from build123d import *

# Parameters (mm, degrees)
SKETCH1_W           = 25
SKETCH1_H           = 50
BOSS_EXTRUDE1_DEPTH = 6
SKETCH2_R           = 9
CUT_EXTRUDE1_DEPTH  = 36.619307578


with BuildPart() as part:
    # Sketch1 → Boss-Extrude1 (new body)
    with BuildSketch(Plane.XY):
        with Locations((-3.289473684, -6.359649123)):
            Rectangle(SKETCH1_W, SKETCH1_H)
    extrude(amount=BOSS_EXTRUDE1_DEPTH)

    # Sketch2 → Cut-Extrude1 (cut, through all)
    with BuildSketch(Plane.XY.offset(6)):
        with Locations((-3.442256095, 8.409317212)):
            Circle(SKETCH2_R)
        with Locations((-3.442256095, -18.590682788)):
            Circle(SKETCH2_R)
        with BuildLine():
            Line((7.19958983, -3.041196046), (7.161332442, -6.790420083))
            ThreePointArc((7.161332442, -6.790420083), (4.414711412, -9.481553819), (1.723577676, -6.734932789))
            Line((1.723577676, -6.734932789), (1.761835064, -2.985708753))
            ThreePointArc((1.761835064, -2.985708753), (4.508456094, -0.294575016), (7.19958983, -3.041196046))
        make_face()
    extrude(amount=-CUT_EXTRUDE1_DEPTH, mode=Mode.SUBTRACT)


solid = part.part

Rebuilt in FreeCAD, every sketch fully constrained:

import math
import FreeCAD as App
import Part
import Sketcher

doc = App.newDocument("Part")
body = doc.addObject("PartDesign::Body", "Body")

sketch1 = body.newObject("Sketcher::SketchObject", "Sketch")
sketch1.AttachmentSupport = (doc.getObject("XY_Plane"), [""])
sketch1.MapMode = "FlatFace"
sketch1.addGeometry(Part.LineSegment(App.Vector(-15.789474, 18.640351, 0), App.Vector(-15.789474, -31.359649, 0)), False)
sketch1.addGeometry(Part.LineSegment(App.Vector(-15.789474, -31.359649, 0), App.Vector(9.210526, -31.359649, 0)), False)
sketch1.addGeometry(Part.LineSegment(App.Vector(9.210526, -31.359649, 0), App.Vector(9.210526, 18.640351, 0)), False)
sketch1.addGeometry(Part.LineSegment(App.Vector(9.210526, 18.640351, 0), App.Vector(-15.789474, 18.640351, 0)), False)
sketch1.addConstraint(Sketcher.Constraint("Coincident", 0, 2, 1, 1))
sketch1.addConstraint(Sketcher.Constraint("Coincident", 1, 2, 2, 1))
sketch1.addConstraint(Sketcher.Constraint("Coincident", 2, 2, 3, 1))
sketch1.addConstraint(Sketcher.Constraint("Coincident", 3, 2, 0, 1))
sketch1.addConstraint(Sketcher.Constraint("Vertical", 0))
sketch1.addConstraint(Sketcher.Constraint("Horizontal", 1))
sketch1.addConstraint(Sketcher.Constraint("Vertical", 2))
sketch1.addConstraint(Sketcher.Constraint("Horizontal", 3))
sketch1.addConstraint(Sketcher.Constraint("DistanceX", 1, 1, 1, 2, 25.0))
sketch1.addConstraint(Sketcher.Constraint("DistanceY", 0, 2, 0, 1, 50.0))
sketch1.addConstraint(Sketcher.Constraint("DistanceY", 0, 2, -1, 1, 31.359649))
sketch1.addConstraint(Sketcher.Constraint("DistanceX", 0, 2, -1, 1, 15.789474))
pad1 = body.newObject("PartDesign::Pad", "Pad")
pad1.Profile = sketch1
pad1.Length = 6

sketch2 = body.newObject("Sketcher::SketchObject", "Sketch001")
sketch2.AttachmentSupport = (doc.getObject("XY_Plane"), [""])
sketch2.MapMode = "FlatFace"
sketch2.AttachmentOffset = App.Placement(App.Vector(0, 0, 6), App.Rotation())
sketch2.addGeometry(Part.Circle(App.Vector(-3.442256, 8.409317, 0), App.Vector(0, 0, 1), 9), False)
sketch2.addGeometry(Part.Circle(App.Vector(-3.442256, -18.590683, 0), App.Vector(0, 0, 1), 9), False)
sketch2.addGeometry(Part.LineSegment(App.Vector(7.161332, -6.79042, 0), App.Vector(7.19959, -3.041196, 0)), False)
sketch2.addGeometry(Part.ArcOfCircle(Part.Circle(App.Vector(4.480712, -3.013452, 0), App.Vector(0, 0, 1), 2.719019), math.radians(-0.584631), math.radians(179.415369)), False)
sketch2.addGeometry(Part.LineSegment(App.Vector(1.761835, -2.985709, 0), App.Vector(1.723578, -6.734933, 0)), False)
sketch2.addGeometry(Part.ArcOfCircle(Part.Circle(App.Vector(4.442455, -6.762676, 0), App.Vector(0, 0, 1), 2.719019), math.radians(179.415369), math.radians(359.415369)), False)
sketch2.addConstraint(Sketcher.Constraint("Tangent", 2, 2, 3, 1))
sketch2.addConstraint(Sketcher.Constraint("Tangent", 3, 2, 4, 1))
sketch2.addConstraint(Sketcher.Constraint("Tangent", 4, 2, 5, 1))
sketch2.addConstraint(Sketcher.Constraint("Tangent", 5, 2, 2, 1))
sketch2.addConstraint(Sketcher.Constraint("Equal", 0, 1))
sketch2.addConstraint(Sketcher.Constraint("Equal", 3, 5))
sketch2.addConstraint(Sketcher.Constraint("Vertical", 0, 3, 1, 3))
sketch2.addConstraint(Sketcher.Constraint("Diameter", 0, 18.0))
sketch2.addConstraint(Sketcher.Constraint("DistanceY", 1, 3, 0, 3, 27.0))
sketch2.addConstraint(Sketcher.Constraint("Radius", 3, 2.719019))
sketch2.addConstraint(Sketcher.Constraint("Distance", 2, 3.749419))
sketch2.addConstraint(Sketcher.Constraint("DistanceX", -1, 1, 2, 2, 7.19959))
sketch2.addConstraint(Sketcher.Constraint("DistanceY", 3, 2, -1, 1, 2.985709))
sketch2.addConstraint(Sketcher.Constraint("DistanceY", 5, 2, -1, 1, 6.79042))
sketch2.addConstraint(Sketcher.Constraint("DistanceX", 0, 3, 3, 3, 7.922969))
sketch2.addConstraint(Sketcher.Constraint("DistanceY", 3, 3, 0, 3, 11.42277))
pocket1 = body.newObject("PartDesign::Pocket", "Pocket")
pocket1.Profile = sketch2
pocket1.Type = "ThroughAll"

doc.recompute()
